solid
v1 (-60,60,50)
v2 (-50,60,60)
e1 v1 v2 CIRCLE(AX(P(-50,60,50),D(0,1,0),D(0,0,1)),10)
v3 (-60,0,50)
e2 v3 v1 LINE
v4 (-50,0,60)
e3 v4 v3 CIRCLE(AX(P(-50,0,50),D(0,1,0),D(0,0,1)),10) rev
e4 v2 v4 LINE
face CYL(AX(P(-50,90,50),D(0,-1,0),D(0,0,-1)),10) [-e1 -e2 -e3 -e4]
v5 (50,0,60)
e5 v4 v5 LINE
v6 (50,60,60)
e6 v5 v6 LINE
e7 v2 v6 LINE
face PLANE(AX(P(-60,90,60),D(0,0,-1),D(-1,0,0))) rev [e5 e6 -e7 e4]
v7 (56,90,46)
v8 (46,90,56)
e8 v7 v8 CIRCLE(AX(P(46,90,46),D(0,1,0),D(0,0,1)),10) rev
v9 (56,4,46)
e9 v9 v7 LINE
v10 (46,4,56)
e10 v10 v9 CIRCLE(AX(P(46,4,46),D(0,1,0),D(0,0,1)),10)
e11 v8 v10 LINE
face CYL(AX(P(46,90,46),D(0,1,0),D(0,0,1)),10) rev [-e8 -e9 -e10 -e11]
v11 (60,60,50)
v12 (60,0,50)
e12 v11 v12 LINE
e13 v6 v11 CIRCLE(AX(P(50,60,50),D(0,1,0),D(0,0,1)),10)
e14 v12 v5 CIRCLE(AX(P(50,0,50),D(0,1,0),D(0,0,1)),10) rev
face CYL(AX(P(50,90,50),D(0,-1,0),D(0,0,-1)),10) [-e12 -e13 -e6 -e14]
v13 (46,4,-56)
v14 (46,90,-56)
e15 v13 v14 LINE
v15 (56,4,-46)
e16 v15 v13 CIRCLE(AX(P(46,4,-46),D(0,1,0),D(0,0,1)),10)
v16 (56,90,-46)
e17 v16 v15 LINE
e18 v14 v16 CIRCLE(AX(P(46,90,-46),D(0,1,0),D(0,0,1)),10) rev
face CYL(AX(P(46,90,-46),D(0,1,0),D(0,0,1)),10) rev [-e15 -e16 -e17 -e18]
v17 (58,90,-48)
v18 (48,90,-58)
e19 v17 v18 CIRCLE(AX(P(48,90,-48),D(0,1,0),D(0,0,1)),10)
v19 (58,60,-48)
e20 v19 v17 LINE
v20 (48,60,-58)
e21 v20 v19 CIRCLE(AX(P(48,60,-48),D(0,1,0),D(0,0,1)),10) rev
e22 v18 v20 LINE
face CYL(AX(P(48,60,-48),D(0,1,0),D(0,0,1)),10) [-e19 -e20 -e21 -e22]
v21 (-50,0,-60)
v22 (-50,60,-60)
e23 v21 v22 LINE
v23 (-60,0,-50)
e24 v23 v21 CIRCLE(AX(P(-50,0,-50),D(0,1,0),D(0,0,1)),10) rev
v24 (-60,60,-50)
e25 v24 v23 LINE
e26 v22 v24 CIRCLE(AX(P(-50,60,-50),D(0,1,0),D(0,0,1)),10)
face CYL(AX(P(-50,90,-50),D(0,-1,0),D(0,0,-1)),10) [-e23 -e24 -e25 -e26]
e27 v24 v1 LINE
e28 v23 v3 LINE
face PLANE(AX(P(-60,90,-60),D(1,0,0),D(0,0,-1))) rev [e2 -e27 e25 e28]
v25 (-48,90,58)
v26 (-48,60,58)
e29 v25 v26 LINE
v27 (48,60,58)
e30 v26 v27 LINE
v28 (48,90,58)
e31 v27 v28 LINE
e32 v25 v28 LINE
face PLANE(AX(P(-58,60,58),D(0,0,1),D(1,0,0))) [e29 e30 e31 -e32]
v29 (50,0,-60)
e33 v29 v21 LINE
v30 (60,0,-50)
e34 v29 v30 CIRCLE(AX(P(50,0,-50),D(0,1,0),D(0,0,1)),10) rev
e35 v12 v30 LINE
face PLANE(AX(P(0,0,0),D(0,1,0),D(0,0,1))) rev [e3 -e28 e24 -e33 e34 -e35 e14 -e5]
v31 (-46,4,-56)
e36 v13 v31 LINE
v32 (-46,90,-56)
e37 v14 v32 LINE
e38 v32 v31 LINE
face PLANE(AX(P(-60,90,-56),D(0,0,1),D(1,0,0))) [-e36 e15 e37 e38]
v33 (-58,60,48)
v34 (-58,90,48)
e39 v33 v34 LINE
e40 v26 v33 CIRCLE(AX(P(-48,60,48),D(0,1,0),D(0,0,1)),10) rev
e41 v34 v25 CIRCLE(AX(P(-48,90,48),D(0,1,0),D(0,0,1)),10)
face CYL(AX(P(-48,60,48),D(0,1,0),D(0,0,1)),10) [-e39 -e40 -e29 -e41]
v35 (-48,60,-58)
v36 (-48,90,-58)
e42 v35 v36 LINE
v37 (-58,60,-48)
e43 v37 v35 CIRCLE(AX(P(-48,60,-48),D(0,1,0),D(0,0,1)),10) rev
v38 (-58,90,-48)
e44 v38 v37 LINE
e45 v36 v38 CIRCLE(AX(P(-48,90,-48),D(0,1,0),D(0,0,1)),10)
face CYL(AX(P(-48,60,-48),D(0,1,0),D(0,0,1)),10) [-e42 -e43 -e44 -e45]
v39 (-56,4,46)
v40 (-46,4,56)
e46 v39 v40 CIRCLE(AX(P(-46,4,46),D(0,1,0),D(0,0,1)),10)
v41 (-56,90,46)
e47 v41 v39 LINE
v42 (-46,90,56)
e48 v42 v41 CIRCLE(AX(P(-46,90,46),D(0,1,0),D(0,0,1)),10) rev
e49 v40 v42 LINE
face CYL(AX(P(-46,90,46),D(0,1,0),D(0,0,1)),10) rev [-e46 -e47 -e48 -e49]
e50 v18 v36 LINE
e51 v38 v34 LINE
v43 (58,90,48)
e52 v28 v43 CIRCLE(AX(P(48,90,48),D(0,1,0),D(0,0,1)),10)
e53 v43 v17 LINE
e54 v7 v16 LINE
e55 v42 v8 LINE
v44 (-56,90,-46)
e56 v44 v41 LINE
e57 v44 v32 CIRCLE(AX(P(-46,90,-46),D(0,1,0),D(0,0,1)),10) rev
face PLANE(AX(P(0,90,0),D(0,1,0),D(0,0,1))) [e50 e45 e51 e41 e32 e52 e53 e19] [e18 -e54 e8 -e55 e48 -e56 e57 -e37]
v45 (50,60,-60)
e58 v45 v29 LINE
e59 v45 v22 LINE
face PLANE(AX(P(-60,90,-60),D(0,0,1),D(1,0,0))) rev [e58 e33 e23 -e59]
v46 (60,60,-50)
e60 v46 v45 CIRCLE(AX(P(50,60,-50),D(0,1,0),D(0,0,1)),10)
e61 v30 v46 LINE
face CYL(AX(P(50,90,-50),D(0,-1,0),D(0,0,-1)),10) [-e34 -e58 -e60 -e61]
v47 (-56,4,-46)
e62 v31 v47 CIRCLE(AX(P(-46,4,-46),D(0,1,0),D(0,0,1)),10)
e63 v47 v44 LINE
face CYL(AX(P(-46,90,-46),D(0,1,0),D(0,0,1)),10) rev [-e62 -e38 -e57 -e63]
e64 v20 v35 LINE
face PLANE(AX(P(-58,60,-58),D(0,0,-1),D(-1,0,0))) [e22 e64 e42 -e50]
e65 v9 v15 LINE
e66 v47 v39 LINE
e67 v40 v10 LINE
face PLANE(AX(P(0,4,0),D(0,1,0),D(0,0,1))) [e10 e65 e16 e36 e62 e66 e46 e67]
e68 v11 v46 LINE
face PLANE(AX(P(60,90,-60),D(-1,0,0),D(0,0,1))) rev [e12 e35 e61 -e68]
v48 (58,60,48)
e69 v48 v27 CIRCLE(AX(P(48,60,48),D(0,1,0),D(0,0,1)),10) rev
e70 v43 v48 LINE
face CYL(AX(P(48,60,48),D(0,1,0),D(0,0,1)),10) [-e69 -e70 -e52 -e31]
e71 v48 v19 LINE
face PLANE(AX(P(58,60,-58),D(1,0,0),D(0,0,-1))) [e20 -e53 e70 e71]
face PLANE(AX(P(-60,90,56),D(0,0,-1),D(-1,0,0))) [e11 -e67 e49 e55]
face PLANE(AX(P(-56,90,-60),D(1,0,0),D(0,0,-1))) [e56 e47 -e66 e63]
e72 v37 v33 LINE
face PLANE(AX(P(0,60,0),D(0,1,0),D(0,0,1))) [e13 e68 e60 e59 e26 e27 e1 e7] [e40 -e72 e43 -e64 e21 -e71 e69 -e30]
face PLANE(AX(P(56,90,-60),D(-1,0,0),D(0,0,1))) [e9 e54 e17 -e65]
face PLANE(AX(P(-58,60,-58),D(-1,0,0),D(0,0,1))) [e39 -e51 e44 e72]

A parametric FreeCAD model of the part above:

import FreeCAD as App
import Part
import Sketcher
from FreeCAD import Vector


def edges_at(feature, points):
    """Names of the edges that pass closest to the given points."""
    edges = feature.Shape.Edges
    near = lambda p: min(range(len(edges)), key=lambda i: edges[i].distToShape(Part.Vertex(*p))[0])
    return sorted({f"Edge{near(p) + 1}" for p in points})


def faces_at(feature, points):
    """Names of the faces that lie closest to the given points."""
    faces = feature.Shape.Faces
    near = lambda p: min(range(len(faces)), key=lambda i: faces[i].distToShape(Part.Vertex(*p))[0])
    return sorted({f"Face{near(p) + 1}" for p in points})

doc = App.newDocument("Part")
params = doc.addObject("Spreadsheet::Sheet", "Params")
for row, (alias, value) in enumerate([
    ("sketch1_width", "120 mm"),
    ("pad1_length", "90 mm"),
    ("thickness_wall", "4 mm"),
    ("sketch2_width", "136 mm"),
    ("sketch2_width2", "116 mm"),
    ("pocket1_length", "30 mm"),
    ("fillet_radius", "10 mm"),
], start=1):
    params.set(f"A{row}", alias)
    params.set(f"B{row}", "=" + value)
    params.setAlias(f"B{row}", alias)

body = doc.addObject("PartDesign::Body", "Body")

sketch1 = doc.addObject("Sketcher::SketchObject", "Sketch")
body.addObject(sketch1)
sketch1.AttachmentSupport = (doc.XZ_Plane, [""])
sketch1.MapMode = "FlatFace"
sketch1.addGeometry([
    Part.LineSegment(Vector(-60, -60, 0), Vector(-60, 60, 0)),
    Part.LineSegment(Vector(-60, 60, 0), Vector(60, 60, 0)),
    Part.LineSegment(Vector(60, 60, 0), Vector(60, -60, 0)),
    Part.LineSegment(Vector(60, -60, 0), Vector(-60, -60, 0)),
], False)
sketch1.addConstraint([
    Sketcher.Constraint("Coincident", 0, 2, 1, 1),
    Sketcher.Constraint("Coincident", 1, 2, 2, 1),
    Sketcher.Constraint("Coincident", 2, 2, 3, 1),
    Sketcher.Constraint("Coincident", 3, 2, 0, 1),
    Sketcher.Constraint("Vertical", 0),
    Sketcher.Constraint("Horizontal", 1),
    Sketcher.Constraint("Vertical", 2),
    Sketcher.Constraint("Horizontal", 3),
    Sketcher.Constraint("Symmetric", 0, 2, 2, 2, -1, 1),
    Sketcher.Constraint("Equal", 3, 0),
    Sketcher.Constraint("DistanceX", 1, 1, 1, 2, 120.0),
])
sketch1.setExpression("Constraints[10]", "Params.sketch1_width")
pad1 = doc.addObject("PartDesign::Pad", "Pad")
body.addObject(pad1)
pad1.Profile = sketch1
pad1.setExpression("Length", "Params.pad1_length")
pad1.Reversed = True
doc.recompute()

thickness = doc.addObject("PartDesign::Thickness", "Thickness")
body.addObject(thickness)
thickness.Base = (pad1, faces_at(pad1, [(0, 90, 0)]))
thickness.setExpression("Value", "Params.thickness_wall")
thickness.Reversed = True
thickness.Join = "Intersection"

sketch2 = doc.addObject("Sketcher::SketchObject", "Sketch001")
body.addObject(sketch2)
sketch2.AttachmentSupport = (doc.XZ_Plane, [""])
sketch2.MapMode = "FlatFace"
sketch2.AttachmentOffset = App.Placement(Vector(0, 0, -90), App.Rotation())
sketch2.addGeometry([
    Part.LineSegment(Vector(-68, -68, 0), Vector(-68, 68, 0)),
    Part.LineSegment(Vector(-68, 68, 0), Vector(68, 68, 0)),
    Part.LineSegment(Vector(68, 68, 0), Vector(68, -68, 0)),
    Part.LineSegment(Vector(68, -68, 0), Vector(-68, -68, 0)),
    Part.LineSegment(Vector(58, 58, 0), Vector(-58, 58, 0)),
    Part.LineSegment(Vector(-58, 58, 0), Vector(-58, -58, 0)),
    Part.LineSegment(Vector(-58, -58, 0), Vector(58, -58, 0)),
    Part.LineSegment(Vector(58, -58, 0), Vector(58, 58, 0)),
], False)
sketch2.addConstraint([
    Sketcher.Constraint("Coincident", 0, 2, 1, 1),
    Sketcher.Constraint("Coincident", 1, 2, 2, 1),
    Sketcher.Constraint("Coincident", 2, 2, 3, 1),
    Sketcher.Constraint("Coincident", 3, 2, 0, 1),
    Sketcher.Constraint("Coincident", 4, 2, 5, 1),
    Sketcher.Constraint("Coincident", 5, 2, 6, 1),
    Sketcher.Constraint("Coincident", 6, 2, 7, 1),
    Sketcher.Constraint("Coincident", 7, 2, 4, 1),
    Sketcher.Constraint("Vertical", 0),
    Sketcher.Constraint("Horizontal", 1),
    Sketcher.Constraint("Vertical", 2),
    Sketcher.Constraint("Horizontal", 3),
    Sketcher.Constraint("Horizontal", 4),
    Sketcher.Constraint("Vertical", 5),
    Sketcher.Constraint("Horizontal", 6),
    Sketcher.Constraint("Vertical", 7),
    Sketcher.Constraint("Symmetric", 0, 2, 2, 2, -1, 1),
    Sketcher.Constraint("Symmetric", 4, 2, 6, 2, -1, 1),
    Sketcher.Constraint("Equal", 3, 0),
    Sketcher.Constraint("Equal", 6, 5),
    Sketcher.Constraint("DistanceX", 1, 1, 1, 2, 136.0),
    Sketcher.Constraint("DistanceX", 4, 2, 4, 1, 116.0),
])
sketch2.setExpression("Constraints[20]", "Params.sketch2_width")
sketch2.setExpression("Constraints[21]", "Params.sketch2_width2")
pocket1 = doc.addObject("PartDesign::Pocket", "Pocket")
body.addObject(pocket1)
pocket1.Profile = sketch2
pocket1.setExpression("Length", "Params.pocket1_length")
pocket1.Reversed = True
doc.recompute()

fillet = doc.addObject("PartDesign::Fillet", "Fillet")
body.addObject(fillet)
fillet.Base = (pocket1, edges_at(pocket1, [
    (56, 47, 56),
    (56, 47, -56),
    (-56, 47, -56),
    (-56, 47, 56),
    (60, 30, 60),
    (-60, 30, 60),
    (-60, 30, -60),
    (60, 30, -60),
    (58, 75, 58),
    (-58, 75, 58),
    (-58, 75, -58),
    (58, 75, -58),
]))
fillet.setExpression("Radius", "Params.fillet_radius")

doc.recompute()
